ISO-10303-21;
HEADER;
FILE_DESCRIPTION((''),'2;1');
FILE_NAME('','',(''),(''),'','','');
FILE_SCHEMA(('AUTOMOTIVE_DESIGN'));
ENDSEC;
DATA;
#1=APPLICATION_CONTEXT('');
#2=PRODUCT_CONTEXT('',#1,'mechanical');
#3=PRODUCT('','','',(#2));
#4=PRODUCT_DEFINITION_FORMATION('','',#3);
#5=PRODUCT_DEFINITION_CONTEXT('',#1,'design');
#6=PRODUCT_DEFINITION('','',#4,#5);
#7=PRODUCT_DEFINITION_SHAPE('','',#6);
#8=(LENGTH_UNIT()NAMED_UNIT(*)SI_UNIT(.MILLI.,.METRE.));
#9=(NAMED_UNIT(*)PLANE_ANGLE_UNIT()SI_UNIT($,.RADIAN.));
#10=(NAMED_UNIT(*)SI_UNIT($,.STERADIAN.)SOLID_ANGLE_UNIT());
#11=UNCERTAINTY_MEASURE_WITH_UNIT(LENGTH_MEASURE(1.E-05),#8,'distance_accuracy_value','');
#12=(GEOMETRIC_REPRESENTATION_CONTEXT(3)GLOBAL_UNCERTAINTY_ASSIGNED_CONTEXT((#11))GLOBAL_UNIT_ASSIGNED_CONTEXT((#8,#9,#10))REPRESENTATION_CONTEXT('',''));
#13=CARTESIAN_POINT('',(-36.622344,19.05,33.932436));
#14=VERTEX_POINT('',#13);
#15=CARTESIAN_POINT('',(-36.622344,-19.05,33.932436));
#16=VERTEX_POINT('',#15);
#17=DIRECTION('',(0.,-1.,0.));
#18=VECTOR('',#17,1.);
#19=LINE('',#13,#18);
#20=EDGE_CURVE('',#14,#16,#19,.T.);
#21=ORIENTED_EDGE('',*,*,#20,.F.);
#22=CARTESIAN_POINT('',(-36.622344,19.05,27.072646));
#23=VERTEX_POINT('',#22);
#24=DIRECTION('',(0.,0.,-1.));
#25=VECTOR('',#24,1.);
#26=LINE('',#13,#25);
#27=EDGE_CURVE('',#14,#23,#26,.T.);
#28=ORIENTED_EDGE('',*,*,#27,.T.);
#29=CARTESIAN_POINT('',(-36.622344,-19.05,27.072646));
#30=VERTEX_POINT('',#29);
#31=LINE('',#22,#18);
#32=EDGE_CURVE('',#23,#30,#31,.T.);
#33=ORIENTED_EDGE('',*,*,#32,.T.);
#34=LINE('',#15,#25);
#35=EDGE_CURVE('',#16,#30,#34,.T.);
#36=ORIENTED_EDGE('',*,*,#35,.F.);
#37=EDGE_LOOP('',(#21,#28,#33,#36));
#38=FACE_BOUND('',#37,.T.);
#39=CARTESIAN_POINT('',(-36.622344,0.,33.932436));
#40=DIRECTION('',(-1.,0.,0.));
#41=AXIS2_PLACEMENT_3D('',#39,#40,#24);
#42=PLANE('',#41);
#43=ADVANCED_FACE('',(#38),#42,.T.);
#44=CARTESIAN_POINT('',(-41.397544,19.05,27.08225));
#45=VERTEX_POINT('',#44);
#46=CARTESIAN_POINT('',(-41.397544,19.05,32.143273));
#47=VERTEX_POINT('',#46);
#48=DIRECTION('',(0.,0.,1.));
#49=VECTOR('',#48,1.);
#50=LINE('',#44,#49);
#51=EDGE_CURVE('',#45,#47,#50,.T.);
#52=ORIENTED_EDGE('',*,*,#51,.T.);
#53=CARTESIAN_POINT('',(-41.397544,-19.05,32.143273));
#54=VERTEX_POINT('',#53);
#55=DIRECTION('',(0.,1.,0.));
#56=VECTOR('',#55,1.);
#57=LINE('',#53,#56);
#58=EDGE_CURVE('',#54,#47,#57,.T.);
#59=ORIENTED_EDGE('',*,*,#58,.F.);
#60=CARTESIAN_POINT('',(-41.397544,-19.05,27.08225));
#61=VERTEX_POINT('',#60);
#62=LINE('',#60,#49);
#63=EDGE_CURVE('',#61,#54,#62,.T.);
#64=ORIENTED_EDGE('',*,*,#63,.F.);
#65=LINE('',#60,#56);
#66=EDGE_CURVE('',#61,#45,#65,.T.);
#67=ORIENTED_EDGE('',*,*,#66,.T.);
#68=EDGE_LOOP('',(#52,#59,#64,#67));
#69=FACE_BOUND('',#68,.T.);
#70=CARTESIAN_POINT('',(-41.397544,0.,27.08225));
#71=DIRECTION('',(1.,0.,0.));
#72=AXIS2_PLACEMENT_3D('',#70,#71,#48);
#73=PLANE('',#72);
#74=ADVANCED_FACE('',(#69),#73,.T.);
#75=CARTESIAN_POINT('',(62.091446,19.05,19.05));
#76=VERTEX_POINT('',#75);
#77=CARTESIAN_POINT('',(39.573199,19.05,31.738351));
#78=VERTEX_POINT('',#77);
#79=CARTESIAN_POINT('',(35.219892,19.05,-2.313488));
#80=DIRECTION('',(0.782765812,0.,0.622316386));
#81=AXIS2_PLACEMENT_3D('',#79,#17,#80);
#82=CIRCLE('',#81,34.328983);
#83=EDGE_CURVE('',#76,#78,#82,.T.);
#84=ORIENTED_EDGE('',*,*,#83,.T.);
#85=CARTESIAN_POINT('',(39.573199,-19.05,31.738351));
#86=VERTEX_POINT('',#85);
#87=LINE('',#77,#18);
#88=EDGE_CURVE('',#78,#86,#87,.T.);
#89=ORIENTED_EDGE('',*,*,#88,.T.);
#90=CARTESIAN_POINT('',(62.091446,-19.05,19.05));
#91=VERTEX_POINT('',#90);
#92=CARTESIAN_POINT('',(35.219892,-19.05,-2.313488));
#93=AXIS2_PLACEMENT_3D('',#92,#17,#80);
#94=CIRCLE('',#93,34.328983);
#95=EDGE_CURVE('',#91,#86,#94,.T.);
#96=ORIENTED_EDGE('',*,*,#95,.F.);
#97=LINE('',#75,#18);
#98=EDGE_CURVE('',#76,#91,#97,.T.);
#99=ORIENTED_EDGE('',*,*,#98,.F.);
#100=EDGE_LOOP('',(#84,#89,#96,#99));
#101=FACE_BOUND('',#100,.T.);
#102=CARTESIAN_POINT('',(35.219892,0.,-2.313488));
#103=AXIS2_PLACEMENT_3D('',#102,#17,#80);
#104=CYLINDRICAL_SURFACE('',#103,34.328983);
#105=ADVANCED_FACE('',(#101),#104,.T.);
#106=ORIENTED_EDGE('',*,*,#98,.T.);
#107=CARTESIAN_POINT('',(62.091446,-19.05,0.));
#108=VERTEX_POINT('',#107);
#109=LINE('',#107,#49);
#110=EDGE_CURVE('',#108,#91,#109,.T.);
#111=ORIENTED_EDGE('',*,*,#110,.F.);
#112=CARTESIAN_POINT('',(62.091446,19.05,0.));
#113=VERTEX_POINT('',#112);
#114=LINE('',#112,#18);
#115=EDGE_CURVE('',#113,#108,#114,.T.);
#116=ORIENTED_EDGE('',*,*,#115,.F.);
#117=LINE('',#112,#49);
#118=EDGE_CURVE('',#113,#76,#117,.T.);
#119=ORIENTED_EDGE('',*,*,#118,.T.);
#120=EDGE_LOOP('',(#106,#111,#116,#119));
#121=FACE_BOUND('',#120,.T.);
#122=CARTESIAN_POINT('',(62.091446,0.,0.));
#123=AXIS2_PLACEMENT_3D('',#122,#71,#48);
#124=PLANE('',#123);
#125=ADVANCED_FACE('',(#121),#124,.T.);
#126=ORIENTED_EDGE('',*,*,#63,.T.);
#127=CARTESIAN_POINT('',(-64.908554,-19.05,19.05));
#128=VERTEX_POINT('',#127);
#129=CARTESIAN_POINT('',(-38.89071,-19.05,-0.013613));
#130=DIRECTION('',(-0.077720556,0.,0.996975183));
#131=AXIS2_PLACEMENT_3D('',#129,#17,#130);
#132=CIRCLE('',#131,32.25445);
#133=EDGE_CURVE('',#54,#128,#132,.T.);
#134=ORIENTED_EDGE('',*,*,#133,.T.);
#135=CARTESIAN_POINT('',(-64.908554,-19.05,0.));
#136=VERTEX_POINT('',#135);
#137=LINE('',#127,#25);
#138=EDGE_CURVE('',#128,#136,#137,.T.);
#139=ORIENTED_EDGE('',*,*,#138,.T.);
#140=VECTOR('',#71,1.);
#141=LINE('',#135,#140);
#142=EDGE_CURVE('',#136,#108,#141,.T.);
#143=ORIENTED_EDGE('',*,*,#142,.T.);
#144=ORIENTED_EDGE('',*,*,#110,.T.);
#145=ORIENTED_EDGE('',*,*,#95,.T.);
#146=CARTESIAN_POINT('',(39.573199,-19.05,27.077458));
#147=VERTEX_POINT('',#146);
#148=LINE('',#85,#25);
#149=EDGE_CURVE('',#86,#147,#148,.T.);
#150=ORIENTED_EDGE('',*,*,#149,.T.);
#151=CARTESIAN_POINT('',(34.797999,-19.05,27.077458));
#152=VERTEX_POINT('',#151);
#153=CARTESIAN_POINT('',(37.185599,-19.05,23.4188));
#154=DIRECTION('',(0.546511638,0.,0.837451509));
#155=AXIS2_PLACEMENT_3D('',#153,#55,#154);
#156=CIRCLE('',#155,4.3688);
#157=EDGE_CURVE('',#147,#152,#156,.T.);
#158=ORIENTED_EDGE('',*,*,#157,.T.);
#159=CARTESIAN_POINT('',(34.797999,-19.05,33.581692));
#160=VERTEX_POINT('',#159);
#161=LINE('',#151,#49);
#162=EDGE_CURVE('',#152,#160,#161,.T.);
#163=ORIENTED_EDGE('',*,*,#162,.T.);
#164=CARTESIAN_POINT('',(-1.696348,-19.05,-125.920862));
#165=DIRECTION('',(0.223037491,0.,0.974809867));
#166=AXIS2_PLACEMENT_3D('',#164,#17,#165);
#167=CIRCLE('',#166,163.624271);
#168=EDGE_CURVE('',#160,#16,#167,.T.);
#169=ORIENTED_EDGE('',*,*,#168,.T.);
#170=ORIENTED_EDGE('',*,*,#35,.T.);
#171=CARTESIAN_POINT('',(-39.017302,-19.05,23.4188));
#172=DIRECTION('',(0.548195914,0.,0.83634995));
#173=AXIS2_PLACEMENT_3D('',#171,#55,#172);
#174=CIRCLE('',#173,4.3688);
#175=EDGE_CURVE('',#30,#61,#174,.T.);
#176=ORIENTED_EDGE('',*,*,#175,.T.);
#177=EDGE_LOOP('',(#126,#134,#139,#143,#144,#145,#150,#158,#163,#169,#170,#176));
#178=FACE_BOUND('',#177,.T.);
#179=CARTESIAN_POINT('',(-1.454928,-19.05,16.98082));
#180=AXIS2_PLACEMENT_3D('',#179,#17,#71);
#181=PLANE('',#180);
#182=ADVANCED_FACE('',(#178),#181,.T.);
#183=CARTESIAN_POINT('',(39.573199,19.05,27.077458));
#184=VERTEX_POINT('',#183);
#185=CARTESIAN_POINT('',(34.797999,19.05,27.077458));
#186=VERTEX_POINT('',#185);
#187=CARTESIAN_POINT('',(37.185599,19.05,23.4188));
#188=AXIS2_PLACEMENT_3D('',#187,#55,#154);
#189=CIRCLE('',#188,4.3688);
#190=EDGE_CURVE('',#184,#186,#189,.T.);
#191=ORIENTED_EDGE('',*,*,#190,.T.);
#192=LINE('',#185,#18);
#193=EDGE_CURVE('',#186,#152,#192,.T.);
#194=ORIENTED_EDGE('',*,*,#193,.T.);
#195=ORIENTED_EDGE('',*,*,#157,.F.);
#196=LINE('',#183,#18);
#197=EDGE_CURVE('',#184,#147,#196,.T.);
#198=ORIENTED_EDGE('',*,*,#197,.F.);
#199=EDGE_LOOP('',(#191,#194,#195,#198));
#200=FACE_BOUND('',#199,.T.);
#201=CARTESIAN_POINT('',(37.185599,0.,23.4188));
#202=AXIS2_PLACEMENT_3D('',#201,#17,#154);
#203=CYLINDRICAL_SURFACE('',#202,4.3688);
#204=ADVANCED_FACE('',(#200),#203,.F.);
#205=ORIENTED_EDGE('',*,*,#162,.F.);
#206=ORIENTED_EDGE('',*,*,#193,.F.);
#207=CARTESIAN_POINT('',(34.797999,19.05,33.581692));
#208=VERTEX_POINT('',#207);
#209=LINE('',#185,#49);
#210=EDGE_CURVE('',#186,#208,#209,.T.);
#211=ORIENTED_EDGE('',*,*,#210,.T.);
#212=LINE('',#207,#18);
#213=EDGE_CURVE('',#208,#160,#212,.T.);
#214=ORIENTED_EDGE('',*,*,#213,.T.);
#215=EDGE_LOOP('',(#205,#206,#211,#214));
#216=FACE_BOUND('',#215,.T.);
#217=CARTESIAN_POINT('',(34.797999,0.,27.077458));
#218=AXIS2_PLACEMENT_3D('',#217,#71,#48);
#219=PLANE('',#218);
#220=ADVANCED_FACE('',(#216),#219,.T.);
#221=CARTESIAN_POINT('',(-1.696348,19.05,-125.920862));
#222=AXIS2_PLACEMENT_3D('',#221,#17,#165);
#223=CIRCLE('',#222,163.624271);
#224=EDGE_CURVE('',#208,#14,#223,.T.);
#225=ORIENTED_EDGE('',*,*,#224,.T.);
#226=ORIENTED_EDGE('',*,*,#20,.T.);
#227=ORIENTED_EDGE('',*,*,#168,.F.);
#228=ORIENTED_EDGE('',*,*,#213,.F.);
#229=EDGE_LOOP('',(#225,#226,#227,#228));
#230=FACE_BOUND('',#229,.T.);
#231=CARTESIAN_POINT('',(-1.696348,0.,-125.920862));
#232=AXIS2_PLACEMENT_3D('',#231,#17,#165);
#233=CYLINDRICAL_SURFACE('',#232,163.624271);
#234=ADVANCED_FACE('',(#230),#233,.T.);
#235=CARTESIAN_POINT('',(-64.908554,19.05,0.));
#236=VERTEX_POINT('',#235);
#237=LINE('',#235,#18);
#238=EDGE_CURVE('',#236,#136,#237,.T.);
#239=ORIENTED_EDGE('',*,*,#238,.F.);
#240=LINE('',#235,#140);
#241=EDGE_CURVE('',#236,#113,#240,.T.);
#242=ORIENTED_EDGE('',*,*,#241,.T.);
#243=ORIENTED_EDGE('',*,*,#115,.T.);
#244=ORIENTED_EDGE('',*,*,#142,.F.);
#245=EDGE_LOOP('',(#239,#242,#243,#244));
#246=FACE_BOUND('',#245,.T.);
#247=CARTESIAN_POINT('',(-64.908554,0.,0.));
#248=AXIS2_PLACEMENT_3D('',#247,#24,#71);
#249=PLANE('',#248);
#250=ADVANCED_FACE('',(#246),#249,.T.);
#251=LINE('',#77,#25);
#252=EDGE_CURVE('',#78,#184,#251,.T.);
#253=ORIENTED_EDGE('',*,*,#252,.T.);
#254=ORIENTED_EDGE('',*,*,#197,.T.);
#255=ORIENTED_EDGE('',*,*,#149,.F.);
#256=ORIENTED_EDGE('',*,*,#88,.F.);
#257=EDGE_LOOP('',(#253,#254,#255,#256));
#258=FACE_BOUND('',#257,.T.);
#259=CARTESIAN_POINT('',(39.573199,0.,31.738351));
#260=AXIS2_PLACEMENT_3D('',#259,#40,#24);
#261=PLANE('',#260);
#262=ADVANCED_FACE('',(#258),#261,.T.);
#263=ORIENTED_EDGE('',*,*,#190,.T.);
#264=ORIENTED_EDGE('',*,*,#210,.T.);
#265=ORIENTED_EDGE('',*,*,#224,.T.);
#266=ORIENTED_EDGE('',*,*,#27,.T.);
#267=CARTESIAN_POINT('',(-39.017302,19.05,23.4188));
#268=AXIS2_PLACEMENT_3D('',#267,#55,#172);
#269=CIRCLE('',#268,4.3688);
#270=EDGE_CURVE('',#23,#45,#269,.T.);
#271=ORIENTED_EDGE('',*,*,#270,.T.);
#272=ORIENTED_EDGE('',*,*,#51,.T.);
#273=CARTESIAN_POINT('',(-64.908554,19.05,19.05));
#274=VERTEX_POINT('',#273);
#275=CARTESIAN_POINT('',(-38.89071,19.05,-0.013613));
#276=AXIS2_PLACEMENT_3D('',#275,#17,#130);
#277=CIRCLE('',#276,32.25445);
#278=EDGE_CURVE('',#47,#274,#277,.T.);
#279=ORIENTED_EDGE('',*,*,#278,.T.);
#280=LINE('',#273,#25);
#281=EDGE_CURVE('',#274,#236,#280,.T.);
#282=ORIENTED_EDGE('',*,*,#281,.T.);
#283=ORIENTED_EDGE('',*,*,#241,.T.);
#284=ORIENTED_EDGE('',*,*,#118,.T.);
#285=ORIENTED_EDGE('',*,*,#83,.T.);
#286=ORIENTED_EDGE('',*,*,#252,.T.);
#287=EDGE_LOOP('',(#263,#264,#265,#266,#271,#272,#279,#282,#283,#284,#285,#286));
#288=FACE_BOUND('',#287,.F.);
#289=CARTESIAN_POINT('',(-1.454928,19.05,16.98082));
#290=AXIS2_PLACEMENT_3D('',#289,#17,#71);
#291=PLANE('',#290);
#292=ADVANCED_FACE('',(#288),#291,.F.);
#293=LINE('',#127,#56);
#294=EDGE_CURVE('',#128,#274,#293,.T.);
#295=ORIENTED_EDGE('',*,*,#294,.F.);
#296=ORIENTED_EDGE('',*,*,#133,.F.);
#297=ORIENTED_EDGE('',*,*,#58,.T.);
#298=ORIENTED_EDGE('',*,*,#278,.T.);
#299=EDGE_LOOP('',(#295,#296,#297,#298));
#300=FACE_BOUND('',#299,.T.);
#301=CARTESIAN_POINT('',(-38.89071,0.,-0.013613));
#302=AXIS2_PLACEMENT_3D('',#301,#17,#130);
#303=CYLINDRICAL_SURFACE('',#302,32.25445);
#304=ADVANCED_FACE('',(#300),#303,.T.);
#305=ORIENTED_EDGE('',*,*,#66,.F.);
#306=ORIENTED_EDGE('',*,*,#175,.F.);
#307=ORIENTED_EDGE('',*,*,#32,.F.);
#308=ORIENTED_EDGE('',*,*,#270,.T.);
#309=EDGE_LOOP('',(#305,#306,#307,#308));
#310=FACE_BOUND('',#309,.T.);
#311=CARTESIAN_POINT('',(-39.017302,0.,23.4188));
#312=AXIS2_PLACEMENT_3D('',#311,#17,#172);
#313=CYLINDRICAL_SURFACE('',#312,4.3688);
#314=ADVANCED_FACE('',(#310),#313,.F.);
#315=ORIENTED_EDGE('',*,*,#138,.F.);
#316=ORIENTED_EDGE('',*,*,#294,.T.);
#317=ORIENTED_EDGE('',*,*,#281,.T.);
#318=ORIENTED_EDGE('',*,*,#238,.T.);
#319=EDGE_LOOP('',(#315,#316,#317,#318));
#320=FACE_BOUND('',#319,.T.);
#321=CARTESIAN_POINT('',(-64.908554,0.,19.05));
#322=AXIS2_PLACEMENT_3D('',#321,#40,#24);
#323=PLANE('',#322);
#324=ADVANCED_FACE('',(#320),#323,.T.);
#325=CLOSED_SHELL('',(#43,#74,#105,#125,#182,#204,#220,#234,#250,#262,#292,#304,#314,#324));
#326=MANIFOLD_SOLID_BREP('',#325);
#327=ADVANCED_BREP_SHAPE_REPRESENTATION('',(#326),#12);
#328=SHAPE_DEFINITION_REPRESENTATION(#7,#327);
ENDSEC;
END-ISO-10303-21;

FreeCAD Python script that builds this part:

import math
import FreeCAD as App
import Part
import Sketcher

V = App.Vector
Q = App.Units.Quantity

doc = App.newDocument("Part")
body = doc.addObject("PartDesign::Body", "Body")

sketch1 = body.newObject("Sketcher::SketchObject", "Sketch")
sketch1.AttachmentSupport = (doc.getObject("XZ_Plane"), [""])
sketch1.MapMode = "FlatFace"
sketch1.addGeometry([
    Part.LineSegment(V(-64.9, 19.1, 0), V(-64.9, 0, 0)),
    Part.LineSegment(V(-64.9, 0, 0), V(62.1, 0, 0)),
    Part.LineSegment(V(62.1, 0, 0), V(62.1, 19.1, 0)),
    Part.ArcOfCircle(Part.Circle(V(35.2, -2.3, 0), V(0, 0, 1), 34.3), math.radians(38), math.radians(83)),
    Part.LineSegment(V(39.6, 31.7, 0), V(39.6, 27.1, 0)),
    Part.ArcOfCircle(Part.Circle(V(37.2, 23.4, 0), V(0, 0, 1), 4.4), math.radians(123), math.radians(417)),
    Part.LineSegment(V(34.8, 27.1, 0), V(34.8, 33.6, 0)),
    Part.ArcOfCircle(Part.Circle(V(-1.7, -125.9, 0), V(0, 0, 1), 163.6), math.radians(77), math.radians(102)),
    Part.LineSegment(V(-36.6, 33.9, 0), V(-36.6, 27.1, 0)),
    Part.ArcOfCircle(Part.Circle(V(-39, 23.4, 0), V(0, 0, 1), 4.4), math.radians(123), math.radians(417)),
    Part.LineSegment(V(-41.4, 27.1, 0), V(-41.4, 32.1, 0)),
    Part.ArcOfCircle(Part.Circle(V(-38.9, 0, 0), V(0, 0, 1), 32.3), math.radians(94), math.radians(144)),
], False)
sketch1.addConstraint([
    Sketcher.Constraint("Coincident", 0, 2, 1, 1),
    Sketcher.Constraint("Coincident", 1, 2, 2, 1),
    Sketcher.Constraint("Coincident", 2, 2, 3, 1),
    Sketcher.Constraint("Coincident", 3, 2, 4, 1),
    Sketcher.Constraint("Coincident", 4, 2, 5, 2),
    Sketcher.Constraint("Coincident", 5, 1, 6, 1),
    Sketcher.Constraint("Coincident", 6, 2, 7, 1),
    Sketcher.Constraint("Coincident", 7, 2, 8, 1),
    Sketcher.Constraint("Coincident", 8, 2, 9, 2),
    Sketcher.Constraint("Coincident", 9, 1, 10, 1),
    Sketcher.Constraint("Coincident", 10, 2, 11, 1),
    Sketcher.Constraint("Coincident", 11, 2, 0, 1),
    Sketcher.Constraint("Vertical", 0),
    Sketcher.Constraint("Horizontal", 1),
    Sketcher.Constraint("Vertical", 2),
    Sketcher.Constraint("Vertical", 4),
    Sketcher.Constraint("Vertical", 6),
    Sketcher.Constraint("Vertical", 8),
    Sketcher.Constraint("Vertical", 10),
    Sketcher.Constraint("Equal", 5, 9),
    Sketcher.Constraint("PointOnObject", 0, 2, -1),
    Sketcher.Constraint("Horizontal", 5, 3, 9, 3),
    Sketcher.Constraint("Horizontal", 4, 2, 5, 1),
    Sketcher.Constraint("Horizontal", 2, 2, 11, 2),
    Sketcher.Constraint("DistanceX", 1, 1, 1, 2, Q("5 in")),
    Sketcher.Constraint("Radius", 5, Q("0.172 in")),
    Sketcher.Constraint("DistanceY", 0, 2, 0, 1, Q("0.75 in")),
    Sketcher.Constraint("DistanceX", -1, 1, 5, 1, Q("1.37 in")),
    Sketcher.Constraint("DistanceX", -1, 1, 5, 3, Q("1.464 in")),
    Sketcher.Constraint("DistanceY", -1, 1, 5, 3, Q("0.922 in")),
    Sketcher.Constraint("Radius", 7, 163.624271),
    Sketcher.Constraint("Radius", 11, 32.25445),
    Sketcher.Constraint("DistanceX", 9, 1, 8, 2, Q("0.188 in")),
    Sketcher.Constraint("Radius", 3, 34.328983),
    Sketcher.Constraint("DistanceY", 8, 2, 8, 1, 6.85979),
    Sketcher.Constraint("DistanceX", 9, 3, 5, 3, 76.202901),
    Sketcher.Constraint("DistanceY", 4, 2, 4, 1, 4.660893),
    Sketcher.Constraint("DistanceY", 6, 1, 6, 2, 6.504234),
    Sketcher.Constraint("DistanceY", 10, 1, 10, 2, 5.061023),
    Sketcher.Constraint("DistanceY", 3, 3, -1, 1, 2.313488),
    Sketcher.Constraint("DistanceY", 7, 3, -1, 1, 125.920862),
])
pad1 = body.newObject("PartDesign::Pad", "Pad")
pad1.Profile = sketch1
pad1.Length = Q("1.5 in")
pad1.Midplane = True

doc.recompute()
